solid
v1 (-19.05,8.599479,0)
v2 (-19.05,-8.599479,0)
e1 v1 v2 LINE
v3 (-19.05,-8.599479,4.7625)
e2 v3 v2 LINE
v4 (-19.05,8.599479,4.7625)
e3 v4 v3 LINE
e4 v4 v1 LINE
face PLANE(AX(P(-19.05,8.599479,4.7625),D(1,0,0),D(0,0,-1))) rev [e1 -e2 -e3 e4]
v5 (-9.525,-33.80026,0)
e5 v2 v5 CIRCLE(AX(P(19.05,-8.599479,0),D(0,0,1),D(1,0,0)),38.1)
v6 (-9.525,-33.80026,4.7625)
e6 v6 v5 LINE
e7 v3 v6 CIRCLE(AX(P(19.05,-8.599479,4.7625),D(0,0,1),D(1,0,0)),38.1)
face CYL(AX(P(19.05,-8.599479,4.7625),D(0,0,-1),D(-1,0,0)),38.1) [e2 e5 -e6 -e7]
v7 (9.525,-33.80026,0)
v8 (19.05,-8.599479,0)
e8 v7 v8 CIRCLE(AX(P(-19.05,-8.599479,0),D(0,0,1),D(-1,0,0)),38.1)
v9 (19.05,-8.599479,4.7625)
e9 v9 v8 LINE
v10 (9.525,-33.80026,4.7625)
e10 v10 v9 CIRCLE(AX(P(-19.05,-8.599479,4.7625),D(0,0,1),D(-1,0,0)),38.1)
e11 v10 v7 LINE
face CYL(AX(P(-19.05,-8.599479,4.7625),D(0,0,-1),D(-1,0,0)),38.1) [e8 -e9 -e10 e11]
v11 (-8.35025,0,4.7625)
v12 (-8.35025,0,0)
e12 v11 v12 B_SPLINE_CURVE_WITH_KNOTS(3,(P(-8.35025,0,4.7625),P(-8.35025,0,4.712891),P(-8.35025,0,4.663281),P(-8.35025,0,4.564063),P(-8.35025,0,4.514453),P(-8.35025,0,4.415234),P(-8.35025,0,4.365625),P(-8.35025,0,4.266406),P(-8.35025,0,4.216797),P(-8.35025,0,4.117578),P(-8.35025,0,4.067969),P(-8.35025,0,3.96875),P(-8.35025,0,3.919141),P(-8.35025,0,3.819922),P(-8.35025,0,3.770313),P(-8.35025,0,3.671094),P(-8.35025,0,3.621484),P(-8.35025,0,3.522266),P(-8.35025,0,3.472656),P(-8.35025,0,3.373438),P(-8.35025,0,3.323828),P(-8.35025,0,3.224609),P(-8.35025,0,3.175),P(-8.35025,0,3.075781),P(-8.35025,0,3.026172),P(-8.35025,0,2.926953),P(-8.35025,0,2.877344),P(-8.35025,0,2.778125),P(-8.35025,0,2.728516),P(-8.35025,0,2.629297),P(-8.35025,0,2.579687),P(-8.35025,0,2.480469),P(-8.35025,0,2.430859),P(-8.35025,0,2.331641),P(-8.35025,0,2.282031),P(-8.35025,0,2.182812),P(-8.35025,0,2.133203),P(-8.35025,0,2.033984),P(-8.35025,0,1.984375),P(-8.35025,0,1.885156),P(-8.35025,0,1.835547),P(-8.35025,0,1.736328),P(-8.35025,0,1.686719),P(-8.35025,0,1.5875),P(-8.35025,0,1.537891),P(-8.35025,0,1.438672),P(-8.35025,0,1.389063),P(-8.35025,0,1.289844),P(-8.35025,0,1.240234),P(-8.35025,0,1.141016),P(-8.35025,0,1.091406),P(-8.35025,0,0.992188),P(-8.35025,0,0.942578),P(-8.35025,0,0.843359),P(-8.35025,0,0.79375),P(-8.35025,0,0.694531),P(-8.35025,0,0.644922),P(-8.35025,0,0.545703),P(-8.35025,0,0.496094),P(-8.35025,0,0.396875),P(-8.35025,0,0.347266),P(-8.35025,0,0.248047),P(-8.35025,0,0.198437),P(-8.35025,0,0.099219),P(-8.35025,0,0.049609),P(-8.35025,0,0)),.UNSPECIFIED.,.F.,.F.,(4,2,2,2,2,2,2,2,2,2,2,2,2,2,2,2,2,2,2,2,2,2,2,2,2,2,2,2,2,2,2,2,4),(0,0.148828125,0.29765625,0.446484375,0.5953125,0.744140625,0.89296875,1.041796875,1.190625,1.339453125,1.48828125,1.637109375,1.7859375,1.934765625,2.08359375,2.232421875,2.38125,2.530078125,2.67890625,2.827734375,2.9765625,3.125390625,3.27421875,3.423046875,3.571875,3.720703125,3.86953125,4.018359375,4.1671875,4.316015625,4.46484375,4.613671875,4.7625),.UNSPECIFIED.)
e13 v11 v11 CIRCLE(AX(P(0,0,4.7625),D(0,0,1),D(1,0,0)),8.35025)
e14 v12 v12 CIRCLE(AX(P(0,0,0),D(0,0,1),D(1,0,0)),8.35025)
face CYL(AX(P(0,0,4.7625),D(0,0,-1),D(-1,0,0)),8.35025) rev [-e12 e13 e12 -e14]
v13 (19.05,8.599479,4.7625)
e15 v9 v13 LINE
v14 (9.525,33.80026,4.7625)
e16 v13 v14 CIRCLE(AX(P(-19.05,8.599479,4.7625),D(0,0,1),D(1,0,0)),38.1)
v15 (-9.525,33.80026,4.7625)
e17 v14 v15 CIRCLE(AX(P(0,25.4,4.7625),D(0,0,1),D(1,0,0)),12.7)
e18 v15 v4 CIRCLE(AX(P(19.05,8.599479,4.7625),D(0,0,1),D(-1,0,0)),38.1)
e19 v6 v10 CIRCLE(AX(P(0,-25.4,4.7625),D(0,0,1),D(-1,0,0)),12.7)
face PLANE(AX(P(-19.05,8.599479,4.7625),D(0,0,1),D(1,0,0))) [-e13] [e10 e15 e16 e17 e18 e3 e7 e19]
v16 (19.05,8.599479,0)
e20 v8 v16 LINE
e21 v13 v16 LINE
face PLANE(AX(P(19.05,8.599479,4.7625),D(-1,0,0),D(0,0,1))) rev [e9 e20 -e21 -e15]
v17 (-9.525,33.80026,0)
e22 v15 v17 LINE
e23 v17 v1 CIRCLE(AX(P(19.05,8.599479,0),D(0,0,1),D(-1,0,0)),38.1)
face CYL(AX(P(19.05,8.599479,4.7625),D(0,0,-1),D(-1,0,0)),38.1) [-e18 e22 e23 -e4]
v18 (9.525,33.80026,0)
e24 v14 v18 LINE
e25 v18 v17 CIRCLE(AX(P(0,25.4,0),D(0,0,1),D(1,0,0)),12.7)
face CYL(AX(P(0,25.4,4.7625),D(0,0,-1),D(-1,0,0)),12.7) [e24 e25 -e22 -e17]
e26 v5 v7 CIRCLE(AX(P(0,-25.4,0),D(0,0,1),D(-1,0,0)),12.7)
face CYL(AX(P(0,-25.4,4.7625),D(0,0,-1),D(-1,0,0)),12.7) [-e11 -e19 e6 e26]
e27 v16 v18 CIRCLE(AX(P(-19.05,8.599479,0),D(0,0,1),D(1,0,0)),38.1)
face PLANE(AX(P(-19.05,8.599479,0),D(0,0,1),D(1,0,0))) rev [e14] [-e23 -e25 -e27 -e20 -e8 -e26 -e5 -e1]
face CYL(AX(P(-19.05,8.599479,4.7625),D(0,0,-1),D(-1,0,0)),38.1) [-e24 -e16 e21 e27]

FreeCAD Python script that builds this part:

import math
import FreeCAD as App
import Part
import Sketcher
from FreeCAD import Vector
Q = App.Units.Quantity

doc = App.newDocument("Part")
body = doc.addObject("PartDesign::Body", "Body")

# Sketch on XY plane
sketch1 = body.newObject("Sketcher::SketchObject", "Sketch")
sketch1.AttachmentSupport = (doc.getObject("XY_Plane"), [""])
sketch1.MapMode = "FlatFace"
sketch1.addGeometry([
    Part.LineSegment(Vector(19, -9, 0), Vector(19, 9, 0)),  # 0
    Part.ArcOfCircle(Part.Circle(Vector(-19, 9, 0), Vector(0, 0, 1), 38), math.radians(0), math.radians(41)),  # 1
    Part.ArcOfCircle(Part.Circle(Vector(0, 25, 0), Vector(0, 0, 1), 13), math.radians(41), math.radians(139)),  # 2
    Part.ArcOfCircle(Part.Circle(Vector(19, 9, 0), Vector(0, 0, 1), 38), math.radians(139), math.radians(180)),  # 3
    Part.LineSegment(Vector(-19, 9, 0), Vector(-19, -9, 0)),  # 4
    Part.ArcOfCircle(Part.Circle(Vector(19, -9, 0), Vector(0, 0, 1), 38), math.radians(-180), math.radians(-139)),  # 5
    Part.ArcOfCircle(Part.Circle(Vector(0, -25, 0), Vector(0, 0, 1), 13), math.radians(-139), math.radians(-41)),  # 6
    Part.ArcOfCircle(Part.Circle(Vector(-19, -9, 0), Vector(0, 0, 1), 38), math.radians(-41), math.radians(0)),  # 7
    Part.Circle(Vector(0, 0, 0), Vector(0, 0, 1), 8),  # 8
], False)
sketch1.addConstraint([
    Sketcher.Constraint("Tangent", 0, 2, 1, 1),
    Sketcher.Constraint("Tangent", 1, 2, 2, 1),
    Sketcher.Constraint("Tangent", 2, 2, 3, 1),
    Sketcher.Constraint("Tangent", 3, 2, 4, 1),
    Sketcher.Constraint("Tangent", 4, 2, 5, 1),
    Sketcher.Constraint("Tangent", 5, 2, 6, 1),
    Sketcher.Constraint("Tangent", 6, 2, 7, 1),
    Sketcher.Constraint("Tangent", 7, 2, 0, 1),
    Sketcher.Constraint("Vertical", 0),
    Sketcher.Constraint("Vertical", 4),
    Sketcher.Constraint("Coincident", 8, 3, -1, 1),
    Sketcher.Constraint("Coincident", 0, 2, 3, 3),
    Sketcher.Constraint("Coincident", 4, 2, 7, 3),
    Sketcher.Constraint("Equal", 1, 3),
    Sketcher.Constraint("Equal", 3, 5),
    Sketcher.Constraint("Equal", 2, 6),
    Sketcher.Constraint("Symmetric", 1, 3, 5, 3, -1, 1),
    Sketcher.Constraint("Radius", 1, Q("1.5 in")),
    Sketcher.Constraint("Radius", 2, Q("0.5 in")),
    Sketcher.Constraint("DistanceY", -1, 1, 2, 3, Q("1 in")),
    Sketcher.Constraint("Diameter", 8, Q("0.6575 in")),
])
pad1 = body.newObject("PartDesign::Pad", "Pad")
pad1.Profile = sketch1
pad1.Length = Q("0.1875 in")

doc.recompute()
